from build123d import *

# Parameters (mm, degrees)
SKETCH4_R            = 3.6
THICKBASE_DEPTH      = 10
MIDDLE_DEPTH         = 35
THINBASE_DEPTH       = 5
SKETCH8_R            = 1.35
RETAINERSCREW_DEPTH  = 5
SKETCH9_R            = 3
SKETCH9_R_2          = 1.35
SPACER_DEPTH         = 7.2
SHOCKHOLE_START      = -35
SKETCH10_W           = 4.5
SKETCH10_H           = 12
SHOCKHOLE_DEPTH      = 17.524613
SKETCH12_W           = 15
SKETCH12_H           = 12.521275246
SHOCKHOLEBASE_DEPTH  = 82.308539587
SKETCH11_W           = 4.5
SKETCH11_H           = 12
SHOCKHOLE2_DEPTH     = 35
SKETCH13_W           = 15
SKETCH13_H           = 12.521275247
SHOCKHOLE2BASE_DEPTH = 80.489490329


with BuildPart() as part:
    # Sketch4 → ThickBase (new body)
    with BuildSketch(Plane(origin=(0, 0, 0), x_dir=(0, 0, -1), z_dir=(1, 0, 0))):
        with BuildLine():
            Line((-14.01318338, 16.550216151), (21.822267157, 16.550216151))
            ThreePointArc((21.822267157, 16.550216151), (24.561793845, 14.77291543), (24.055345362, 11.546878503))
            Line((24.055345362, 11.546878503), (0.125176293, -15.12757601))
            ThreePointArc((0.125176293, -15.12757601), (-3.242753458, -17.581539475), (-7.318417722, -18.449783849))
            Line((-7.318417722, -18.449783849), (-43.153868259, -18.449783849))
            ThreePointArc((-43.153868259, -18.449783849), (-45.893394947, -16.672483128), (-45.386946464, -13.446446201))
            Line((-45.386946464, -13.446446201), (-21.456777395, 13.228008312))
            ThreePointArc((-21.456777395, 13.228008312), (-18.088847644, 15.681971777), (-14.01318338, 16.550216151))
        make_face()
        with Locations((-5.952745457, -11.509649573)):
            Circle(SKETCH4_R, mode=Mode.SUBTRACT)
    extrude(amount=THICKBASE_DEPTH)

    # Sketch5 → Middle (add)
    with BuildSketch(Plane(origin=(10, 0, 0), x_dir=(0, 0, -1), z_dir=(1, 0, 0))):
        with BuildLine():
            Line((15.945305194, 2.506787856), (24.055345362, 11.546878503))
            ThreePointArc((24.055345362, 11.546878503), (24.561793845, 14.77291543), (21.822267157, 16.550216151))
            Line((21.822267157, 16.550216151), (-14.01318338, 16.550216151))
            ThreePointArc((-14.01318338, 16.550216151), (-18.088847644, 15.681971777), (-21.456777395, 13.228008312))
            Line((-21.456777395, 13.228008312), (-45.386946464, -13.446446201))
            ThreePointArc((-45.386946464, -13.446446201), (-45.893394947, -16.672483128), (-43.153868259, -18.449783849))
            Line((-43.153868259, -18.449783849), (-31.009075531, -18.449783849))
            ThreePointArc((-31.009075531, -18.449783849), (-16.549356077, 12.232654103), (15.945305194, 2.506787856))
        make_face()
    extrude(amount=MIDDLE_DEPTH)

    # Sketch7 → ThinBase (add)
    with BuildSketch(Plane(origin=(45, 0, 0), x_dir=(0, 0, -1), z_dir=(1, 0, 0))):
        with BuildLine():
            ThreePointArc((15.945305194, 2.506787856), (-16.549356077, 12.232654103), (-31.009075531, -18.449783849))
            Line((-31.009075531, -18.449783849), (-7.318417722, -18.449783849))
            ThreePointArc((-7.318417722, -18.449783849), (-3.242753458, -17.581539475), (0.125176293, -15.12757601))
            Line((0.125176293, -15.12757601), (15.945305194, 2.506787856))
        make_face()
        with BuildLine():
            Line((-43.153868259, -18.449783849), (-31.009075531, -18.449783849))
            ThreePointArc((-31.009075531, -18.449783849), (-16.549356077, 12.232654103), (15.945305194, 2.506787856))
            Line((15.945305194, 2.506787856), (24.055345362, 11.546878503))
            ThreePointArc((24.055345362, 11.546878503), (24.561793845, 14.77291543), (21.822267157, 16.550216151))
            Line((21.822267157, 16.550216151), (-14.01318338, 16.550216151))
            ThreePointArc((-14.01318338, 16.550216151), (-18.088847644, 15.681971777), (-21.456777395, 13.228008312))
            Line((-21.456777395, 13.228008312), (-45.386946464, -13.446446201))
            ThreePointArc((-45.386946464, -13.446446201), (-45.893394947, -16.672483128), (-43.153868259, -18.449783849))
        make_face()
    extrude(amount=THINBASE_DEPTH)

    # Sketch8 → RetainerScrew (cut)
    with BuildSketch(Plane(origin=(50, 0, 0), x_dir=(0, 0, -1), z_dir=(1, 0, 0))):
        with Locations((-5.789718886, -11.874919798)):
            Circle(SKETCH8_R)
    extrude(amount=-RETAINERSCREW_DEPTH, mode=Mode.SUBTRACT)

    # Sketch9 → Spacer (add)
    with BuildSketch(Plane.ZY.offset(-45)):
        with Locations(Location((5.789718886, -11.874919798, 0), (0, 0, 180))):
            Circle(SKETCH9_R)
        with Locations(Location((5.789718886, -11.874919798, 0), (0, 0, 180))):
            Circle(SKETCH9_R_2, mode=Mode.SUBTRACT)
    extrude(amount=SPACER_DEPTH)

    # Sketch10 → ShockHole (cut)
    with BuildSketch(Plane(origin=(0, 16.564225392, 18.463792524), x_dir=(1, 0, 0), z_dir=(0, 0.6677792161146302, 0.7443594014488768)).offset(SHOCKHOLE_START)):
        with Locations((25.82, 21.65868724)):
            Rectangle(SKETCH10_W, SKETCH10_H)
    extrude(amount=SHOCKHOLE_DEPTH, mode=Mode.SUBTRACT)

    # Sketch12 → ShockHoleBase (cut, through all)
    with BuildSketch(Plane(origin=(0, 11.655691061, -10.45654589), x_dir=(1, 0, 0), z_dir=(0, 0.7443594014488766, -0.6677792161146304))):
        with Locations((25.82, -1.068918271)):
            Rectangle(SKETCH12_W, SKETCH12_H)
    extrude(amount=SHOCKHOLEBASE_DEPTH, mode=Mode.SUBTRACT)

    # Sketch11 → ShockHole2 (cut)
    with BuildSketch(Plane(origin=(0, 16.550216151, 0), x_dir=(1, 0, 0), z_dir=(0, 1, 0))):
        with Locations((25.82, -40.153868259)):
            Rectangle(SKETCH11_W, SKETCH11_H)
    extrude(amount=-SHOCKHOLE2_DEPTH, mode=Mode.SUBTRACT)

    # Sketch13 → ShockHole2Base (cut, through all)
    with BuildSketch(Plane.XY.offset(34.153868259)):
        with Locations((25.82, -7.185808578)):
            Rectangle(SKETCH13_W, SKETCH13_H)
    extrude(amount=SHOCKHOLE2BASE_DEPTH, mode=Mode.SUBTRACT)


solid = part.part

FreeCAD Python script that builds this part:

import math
import FreeCAD as App
import Part
import Sketcher


def add_polygon(sketch, points):
    """Adds a closed chain of lines whose ends are joined by coincident constraints."""
    first, n = sketch.GeometryCount, len(points)
    for a, b in zip(points, points[1:] + points[:1]):
        sketch.addGeometry(Part.LineSegment(App.Vector(*a, 0), App.Vector(*b, 0)), False)
    for i in range(n):
        sketch.addConstraint(Sketcher.Constraint("Coincident", first + i, 2, first + (i + 1) % n, 1))

doc = App.newDocument("Part")
body = doc.addObject("PartDesign::Body", "Body")

sketch1 = doc.addObject("Sketcher::SketchObject", "Sketch")
body.addObject(sketch1)
sketch1.AttachmentSupport = (doc.YZ_Plane, [""])
sketch1.MapMode = "FlatFace"
sketch1.addGeometry(Part.LineSegment(App.Vector(16.6, -21.8, 0), App.Vector(16.6, 14, 0)), False)
sketch1.addGeometry(Part.ArcOfCircle(Part.Circle(App.Vector(6.6, 14, 0), App.Vector(0, 0, 1), 10), math.radians(0), math.radians(48)), False)
sketch1.addGeometry(Part.LineSegment(App.Vector(13.2, 21.5, 0), App.Vector(-13.4, 45.4, 0)), False)
sketch1.addGeometry(Part.ArcOfCircle(Part.Circle(App.Vector(-15.4, 43.2, 0), App.Vector(0, 0, 1), 3), math.radians(48), math.radians(180)), False)
sketch1.addGeometry(Part.LineSegment(App.Vector(-18.4, 43.2, 0), App.Vector(-18.4, 7.3, 0)), False)
sketch1.addGeometry(Part.ArcOfCircle(Part.Circle(App.Vector(-8.4, 7.3, 0), App.Vector(0, 0, 1), 10), math.radians(180), math.radians(228)), False)
sketch1.addGeometry(Part.LineSegment(App.Vector(-15.1, -0.1, 0), App.Vector(11.5, -24.1, 0)), False)
sketch1.addGeometry(Part.ArcOfCircle(Part.Circle(App.Vector(13.6, -21.8, 0), App.Vector(0, 0, 1), 3), math.radians(-132), math.radians(0)), False)
sketch1.addGeometry(Part.Circle(App.Vector(-11.5, 6, 0), App.Vector(0, 0, 1), 3.6), False)
sketch1.addConstraint(Sketcher.Constraint("Tangent", 0, 2, 1, 1))
sketch1.addConstraint(Sketcher.Constraint("Tangent", 1, 2, 2, 1))
sketch1.addConstraint(Sketcher.Constraint("Tangent", 2, 2, 3, 1))
sketch1.addConstraint(Sketcher.Constraint("Tangent", 3, 2, 4, 1))
sketch1.addConstraint(Sketcher.Constraint("Tangent", 4, 2, 5, 1))
sketch1.addConstraint(Sketcher.Constraint("Tangent", 5, 2, 6, 1))
sketch1.addConstraint(Sketcher.Constraint("Tangent", 6, 2, 7, 1))
sketch1.addConstraint(Sketcher.Constraint("Tangent", 7, 2, 0, 1))
sketch1.addConstraint(Sketcher.Constraint("Vertical", 0))
sketch1.addConstraint(Sketcher.Constraint("Vertical", 4))
sketch1.addConstraint(Sketcher.Constraint("Equal", 1, 5))
sketch1.addConstraint(Sketcher.Constraint("Equal", 3, 7))
sketch1.addConstraint(Sketcher.Constraint("Parallel", 2, 6))
sketch1.addConstraint(Sketcher.Constraint("Radius", 1, 10.0))
sketch1.addConstraint(Sketcher.Constraint("Radius", 3, 3.0))
sketch1.addConstraint(Sketcher.Constraint("Diameter", 8, 7.2))
sketch1.addConstraint(Sketcher.Constraint("DistanceX", 3, 3, 1, 3, 22.0))
sketch1.addConstraint(Sketcher.Constraint("DistanceY", 0, 1, 0, 2, 35.835451))
sketch1.addConstraint(Sketcher.Constraint("DistanceY", 8, 3, 2, 2, 39.434201))
sketch1.addConstraint(Sketcher.Constraint("Distance", 2, 35.835451))
sketch1.addConstraint(Sketcher.Constraint("DistanceY", -1, 1, 3, 3, 43.153868))
sketch1.addConstraint(Sketcher.Constraint("DistanceX", 8, 3, -1, 1, 11.50965))
sketch1.addConstraint(Sketcher.Constraint("DistanceX", -1, 1, 1, 2, 13.228008))
pad1 = doc.addObject("PartDesign::Pad", "Pad")
body.addObject(pad1)
pad1.Profile = sketch1
pad1.Length = 10

sketch2 = doc.addObject("Sketcher::SketchObject", "Sketch001")
body.addObject(sketch2)
sketch2.AttachmentSupport = (doc.YZ_Plane, [""])
sketch2.MapMode = "FlatFace"
sketch2.AttachmentOffset = App.Placement(App.Vector(0, 0, 10), App.Rotation())
sketch2.addGeometry(Part.LineSegment(App.Vector(2.5, -15.9, 0), App.Vector(11.5, -24.1, 0)), False)
sketch2.addGeometry(Part.ArcOfCircle(Part.Circle(App.Vector(13.6, -21.8, 0), App.Vector(0, 0, 1), 3), math.radians(-132), math.radians(0)), False)
sketch2.addGeometry(Part.LineSegment(App.Vector(16.6, -21.8, 0), App.Vector(16.6, 14, 0)), False)
sketch2.addGeometry(Part.ArcOfCircle(Part.Circle(App.Vector(6.6, 14, 0), App.Vector(0, 0, 1), 10), math.radians(0), math.radians(48)), False)
sketch2.addGeometry(Part.LineSegment(App.Vector(13.2, 21.5, 0), App.Vector(-13.4, 45.4, 0)), False)
sketch2.addGeometry(Part.ArcOfCircle(Part.Circle(App.Vector(-15.4, 43.2, 0), App.Vector(0, 0, 1), 3), math.radians(48), math.radians(180)), False)
sketch2.addGeometry(Part.LineSegment(App.Vector(-18.4, 43.2, 0), App.Vector(-18.4, 31, 0)), False)
sketch2.addGeometry(Part.ArcOfCircle(Part.Circle(App.Vector(-11.5, 6, 0), App.Vector(0, 0, 1), 26), math.radians(-57), math.radians(105)), False)
sketch2.addConstraint(Sketcher.Constraint("Tangent", 0, 2, 1, 1))
sketch2.addConstraint(Sketcher.Constraint("Tangent", 1, 2, 2, 1))
sketch2.addConstraint(Sketcher.Constraint("Tangent", 2, 2, 3, 1))
sketch2.addConstraint(Sketcher.Constraint("Tangent", 3, 2, 4, 1))
sketch2.addConstraint(Sketcher.Constraint("Tangent", 4, 2, 5, 1))
sketch2.addConstraint(Sketcher.Constraint("Tangent", 5, 2, 6, 1))
sketch2.addConstraint(Sketcher.Constraint("Coincident", 6, 2, 7, 2))
sketch2.addConstraint(Sketcher.Constraint("Coincident", 7, 1, 0, 1))
sketch2.addConstraint(Sketcher.Constraint("Vertical", 2))
sketch2.addConstraint(Sketcher.Constraint("Vertical", 6))
sketch2.addConstraint(Sketcher.Constraint("Equal", 1, 5))
sketch2.addConstraint(Sketcher.Constraint("Parallel", 0, 4))
sketch2.addConstraint(Sketcher.Constraint("Radius", 1, 3.0))
sketch2.addConstraint(Sketcher.Constraint("Radius", 3, 10.0))
sketch2.addConstraint(Sketcher.Constraint("DistanceX", 5, 3, 3, 3, 22.0))
sketch2.addConstraint(Sketcher.Constraint("Radius", 7, 25.999714))
sketch2.addConstraint(Sketcher.Constraint("DistanceY", 2, 1, 2, 2, 35.835451))
sketch2.addConstraint(Sketcher.Constraint("DistanceY", 7, 3, 4, 2, 39.434201))
sketch2.addConstraint(Sketcher.Constraint("Distance", 4, 35.835451))
sketch2.addConstraint(Sketcher.Constraint("DistanceY", 6, 2, 6, 1, 12.144793))
sketch2.addConstraint(Sketcher.Constraint("DistanceY", -1, 1, 5, 3, 43.153868))
sketch2.addConstraint(Sketcher.Constraint("DistanceX", 7, 3, -1, 1, 11.50965))
pad2 = doc.addObject("PartDesign::Pad", "Pad001")
body.addObject(pad2)
pad2.Profile = sketch2
pad2.Length = 35

sketch3 = doc.addObject("Sketcher::SketchObject", "Sketch002")
body.addObject(sketch3)
sketch3.AttachmentSupport = (doc.YZ_Plane, [""])
sketch3.MapMode = "FlatFace"
sketch3.AttachmentOffset = App.Placement(App.Vector(0, 0, 45), App.Rotation())
sketch3.addGeometry(Part.ArcOfCircle(Part.Circle(App.Vector(-8.4, 7.3, 0), App.Vector(0, 0, 1), 10), math.radians(180), math.radians(228)), False)
sketch3.addGeometry(Part.LineSegment(App.Vector(-15.1, -0.1, 0), App.Vector(2.5, -15.9, 0)), False)
sketch3.addGeometry(Part.LineSegment(App.Vector(2.5, -15.9, 0), App.Vector(11.5, -24.1, 0)), False)
sketch3.addGeometry(Part.ArcOfCircle(Part.Circle(App.Vector(13.6, -21.8, 0), App.Vector(0, 0, 1), 3), math.radians(-132), math.radians(0)), False)
sketch3.addGeometry(Part.LineSegment(App.Vector(16.6, -21.8, 0), App.Vector(16.6, 14, 0)), False)
sketch3.addGeometry(Part.ArcOfCircle(Part.Circle(App.Vector(6.6, 14, 0), App.Vector(0, 0, 1), 10), math.radians(0), math.radians(48)), False)
sketch3.addGeometry(Part.LineSegment(App.Vector(13.2, 21.5, 0), App.Vector(-13.4, 45.4, 0)), False)
sketch3.addGeometry(Part.ArcOfCircle(Part.Circle(App.Vector(-15.4, 43.2, 0), App.Vector(0, 0, 1), 3), math.radians(48), math.radians(180)), False)
sketch3.addGeometry(Part.LineSegment(App.Vector(-18.4, 43.2, 0), App.Vector(-18.4, 7.3, 0)), False)
sketch3.addConstraint(Sketcher.Constraint("Tangent", 0, 2, 1, 1))
sketch3.addConstraint(Sketcher.Constraint("Coincident", 1, 2, 2, 1))
sketch3.addConstraint(Sketcher.Constraint("Tangent", 2, 2, 3, 1))
sketch3.addConstraint(Sketcher.Constraint("Tangent", 3, 2, 4, 1))
sketch3.addConstraint(Sketcher.Constraint("Tangent", 4, 2, 5, 1))
sketch3.addConstraint(Sketcher.Constraint("Tangent", 5, 2, 6, 1))
sketch3.addConstraint(Sketcher.Constraint("Tangent", 6, 2, 7, 1))
sketch3.addConstraint(Sketcher.Constraint("Tangent", 7, 2, 8, 1))
sketch3.addConstraint(Sketcher.Constraint("Tangent", 8, 2, 0, 1))
sketch3.addConstraint(Sketcher.Constraint("Vertical", 4))
sketch3.addConstraint(Sketcher.Constraint("Vertical", 8))
sketch3.addConstraint(Sketcher.Constraint("Equal", 0, 5))
sketch3.addConstraint(Sketcher.Constraint("Equal", 3, 7))
sketch3.addConstraint(Sketcher.Constraint("Parallel", 1, 2))
sketch3.addConstraint(Sketcher.Constraint("Parallel", 2, 6))
sketch3.addConstraint(Sketcher.Constraint("Radius", 0, 10.0))
sketch3.addConstraint(Sketcher.Constraint("Radius", 3, 3.0))
sketch3.addConstraint(Sketcher.Constraint("DistanceX", 0, 3, 3, 3, 22.0))
sketch3.addConstraint(Sketcher.Constraint("DistanceY", 4, 1, 4, 2, 35.835451))
sketch3.addConstraint(Sketcher.Constraint("Distance", 6, 35.835451))
sketch3.addConstraint(Sketcher.Constraint("DistanceY", -1, 1, 7, 3, 43.153868))
sketch3.addConstraint(Sketcher.Constraint("DistanceX", -1, 1, 2, 2, 11.546879))
sketch3.addConstraint(Sketcher.Constraint("DistanceX", 1, 2, 3, 3, 11.043428))
pad3 = doc.addObject("PartDesign::Pad", "Pad002")
body.addObject(pad3)
pad3.Profile = sketch3
pad3.Length = 5

sketch4 = doc.addObject("Sketcher::SketchObject", "Sketch003")
body.addObject(sketch4)
sketch4.AttachmentSupport = (doc.YZ_Plane, [""])
sketch4.MapMode = "FlatFace"
sketch4.AttachmentOffset = App.Placement(App.Vector(0, 0, 50), App.Rotation())
sketch4.addGeometry(Part.Circle(App.Vector(-11.9, 5.8, 0), App.Vector(0, 0, 1), 1.4), False)
sketch4.addConstraint(Sketcher.Constraint("Diameter", 0, 2.7))
sketch4.addConstraint(Sketcher.Constraint("DistanceX", 0, 3, -1, 1, 11.87492))
sketch4.addConstraint(Sketcher.Constraint("DistanceY", -1, 1, 0, 3, 5.789719))
pocket1 = doc.addObject("PartDesign::Pocket", "Pocket")
body.addObject(pocket1)
pocket1.Profile = sketch4
pocket1.Length = 5

sketch5 = doc.addObject("Sketcher::SketchObject", "Sketch004")
body.addObject(sketch5)
sketch5.AttachmentSupport = (doc.YZ_Plane, [""])
sketch5.MapMode = "FlatFace"
sketch5.AttachmentOffset = App.Placement(App.Vector(0, 0, 45), App.Rotation())
sketch5.addGeometry(Part.Circle(App.Vector(-11.9, 5.8, 0), App.Vector(0, 0, 1), 3), False)
sketch5.addGeometry(Part.Circle(App.Vector(-11.9, 5.8, 0), App.Vector(0, 0, 1), 1.4), False)
sketch5.addConstraint(Sketcher.Constraint("Coincident", 1, 3, 0, 3))
sketch5.addConstraint(Sketcher.Constraint("Diameter", 0, 6.0))
sketch5.addConstraint(Sketcher.Constraint("Diameter", 1, 2.7))
sketch5.addConstraint(Sketcher.Constraint("DistanceX", 0, 3, -1, 1, 11.87492))
sketch5.addConstraint(Sketcher.Constraint("DistanceY", -1, 1, 0, 3, 5.789719))
pad4 = doc.addObject("PartDesign::Pad", "Pad003")
body.addObject(pad4)
pad4.Profile = sketch5
pad4.Length = 7.2
pad4.Reversed = True

sketch6 = doc.addObject("Sketcher::SketchObject", "Sketch005")
body.addObject(sketch6)
sketch6.Placement = App.Placement(App.Vector(0, -6.808047, -7.588787), App.Rotation(App.Vector(1, 0, 0), App.Vector(0, 0.744359401, -0.667779216), App.Vector(0, 0.667779216, 0.744359401), "ZXY"))
add_polygon(sketch6, [(23.6, 27.7), (23.6, 15.7), (28.1, 15.7), (28.1, 27.7)])
sketch6.addConstraint(Sketcher.Constraint("Vertical", 0))
sketch6.addConstraint(Sketcher.Constraint("Horizontal", 1))
sketch6.addConstraint(Sketcher.Constraint("Vertical", 2))
sketch6.addConstraint(Sketcher.Constraint("Horizontal", 3))
sketch6.addConstraint(Sketcher.Constraint("DistanceY", 0, 2, 0, 1, 12.0))
sketch6.addConstraint(Sketcher.Constraint("DistanceX", 1, 1, 1, 2, 4.5))
sketch6.addConstraint(Sketcher.Constraint("DistanceX", -1, 1, 0, 2, 23.57))
sketch6.addConstraint(Sketcher.Constraint("DistanceY", -1, 1, 0, 2, 15.658687))
pocket2 = doc.addObject("PartDesign::Pocket", "Pocket001")
body.addObject(pocket2)
pocket2.Profile = sketch6
pocket2.Length = 17.524613
pocket2.Reversed = True

sketch7 = doc.addObject("Sketcher::SketchObject", "Sketch006")
body.addObject(sketch7)
sketch7.Placement = App.Placement(App.Vector(0, 11.655691, -10.456546), App.Rotation(App.Vector(1, 0, 0), App.Vector(0, -0.667779216, -0.744359401), App.Vector(0, 0.744359401, -0.667779216), "ZXY"))
add_polygon(sketch7, [(18, 5), (18, -7), (33, -7), (33, 5)])
sketch7.addConstraint(Sketcher.Constraint("Vertical", 0))
sketch7.addConstraint(Sketcher.Constraint("Horizontal", 1))
sketch7.addConstraint(Sketcher.Constraint("Vertical", 2))
sketch7.addConstraint(Sketcher.Constraint("Horizontal", 3))
sketch7.addConstraint(Sketcher.Constraint("DistanceX", 1, 1, 1, 2, 15.0))
sketch7.addConstraint(Sketcher.Constraint("DistanceX", -1, 1, 0, 2, 18.32))
sketch7.addConstraint(Sketcher.Constraint("DistanceY", 0, 2, 0, 1, 12.521275))
sketch7.addConstraint(Sketcher.Constraint("DistanceY", -1, 1, 2, 2, 5.191719))
pocket3 = doc.addObject("PartDesign::Pocket", "Pocket002")
body.addObject(pocket3)
pocket3.Profile = sketch7
pocket3.Type = "ThroughAll"
pocket3.Reversed = True

sketch8 = doc.addObject("Sketcher::SketchObject", "Sketch007")
body.addObject(sketch8)
sketch8.AttachmentSupport = (doc.XZ_Plane, [""])
sketch8.MapMode = "FlatFace"
sketch8.AttachmentOffset = App.Placement(App.Vector(0, 0, -16.550216), App.Rotation())
add_polygon(sketch8, [(23.6, 34.2), (23.6, 46.2), (28.1, 46.2), (28.1, 34.2)])
sketch8.addConstraint(Sketcher.Constraint("Vertical", 0))
sketch8.addConstraint(Sketcher.Constraint("Horizontal", 1))
sketch8.addConstraint(Sketcher.Constraint("Vertical", 2))
sketch8.addConstraint(Sketcher.Constraint("Horizontal", 3))
sketch8.addConstraint(Sketcher.Constraint("DistanceY", 0, 1, 0, 2, 12.0))
sketch8.addConstraint(Sketcher.Constraint("DistanceX", 1, 1, 1, 2, 4.5))
sketch8.addConstraint(Sketcher.Constraint("DistanceX", -1, 1, 0, 2, 23.57))
sketch8.addConstraint(Sketcher.Constraint("DistanceY", -1, 1, 0, 2, 46.153868))
pocket4 = doc.addObject("PartDesign::Pocket", "Pocket003")
body.addObject(pocket4)
pocket4.Profile = sketch8
pocket4.Length = 35
pocket4.Reversed = True

sketch9 = doc.addObject("Sketcher::SketchObject", "Sketch008")
body.addObject(sketch9)
sketch9.AttachmentSupport = (doc.XY_Plane, [""])
sketch9.MapMode = "FlatFace"
sketch9.AttachmentOffset = App.Placement(App.Vector(0, 0, 34.153868), App.Rotation())
add_polygon(sketch9, [(18, -1), (18, -13), (33, -13), (33, -1)])
sketch9.addConstraint(Sketcher.Constraint("Vertical", 0))
sketch9.addConstraint(Sketcher.Constraint("Horizontal", 1))
sketch9.addConstraint(Sketcher.Constraint("Vertical", 2))
sketch9.addConstraint(Sketcher.Constraint("Horizontal", 3))
sketch9.addConstraint(Sketcher.Constraint("DistanceX", 1, 1, 1, 2, 15.0))
sketch9.addConstraint(Sketcher.Constraint("DistanceX", -1, 1, 0, 2, 18.32))
sketch9.addConstraint(Sketcher.Constraint("DistanceY", 0, 2, 0, 1, 12.521275))
sketch9.addConstraint(Sketcher.Constraint("DistanceY", 2, 2, -1, 1, 0.925171))
pocket5 = doc.addObject("PartDesign::Pocket", "Pocket004")
body.addObject(pocket5)
pocket5.Profile = sketch9
pocket5.Type = "ThroughAll"
pocket5.Reversed = True

doc.recompute()
